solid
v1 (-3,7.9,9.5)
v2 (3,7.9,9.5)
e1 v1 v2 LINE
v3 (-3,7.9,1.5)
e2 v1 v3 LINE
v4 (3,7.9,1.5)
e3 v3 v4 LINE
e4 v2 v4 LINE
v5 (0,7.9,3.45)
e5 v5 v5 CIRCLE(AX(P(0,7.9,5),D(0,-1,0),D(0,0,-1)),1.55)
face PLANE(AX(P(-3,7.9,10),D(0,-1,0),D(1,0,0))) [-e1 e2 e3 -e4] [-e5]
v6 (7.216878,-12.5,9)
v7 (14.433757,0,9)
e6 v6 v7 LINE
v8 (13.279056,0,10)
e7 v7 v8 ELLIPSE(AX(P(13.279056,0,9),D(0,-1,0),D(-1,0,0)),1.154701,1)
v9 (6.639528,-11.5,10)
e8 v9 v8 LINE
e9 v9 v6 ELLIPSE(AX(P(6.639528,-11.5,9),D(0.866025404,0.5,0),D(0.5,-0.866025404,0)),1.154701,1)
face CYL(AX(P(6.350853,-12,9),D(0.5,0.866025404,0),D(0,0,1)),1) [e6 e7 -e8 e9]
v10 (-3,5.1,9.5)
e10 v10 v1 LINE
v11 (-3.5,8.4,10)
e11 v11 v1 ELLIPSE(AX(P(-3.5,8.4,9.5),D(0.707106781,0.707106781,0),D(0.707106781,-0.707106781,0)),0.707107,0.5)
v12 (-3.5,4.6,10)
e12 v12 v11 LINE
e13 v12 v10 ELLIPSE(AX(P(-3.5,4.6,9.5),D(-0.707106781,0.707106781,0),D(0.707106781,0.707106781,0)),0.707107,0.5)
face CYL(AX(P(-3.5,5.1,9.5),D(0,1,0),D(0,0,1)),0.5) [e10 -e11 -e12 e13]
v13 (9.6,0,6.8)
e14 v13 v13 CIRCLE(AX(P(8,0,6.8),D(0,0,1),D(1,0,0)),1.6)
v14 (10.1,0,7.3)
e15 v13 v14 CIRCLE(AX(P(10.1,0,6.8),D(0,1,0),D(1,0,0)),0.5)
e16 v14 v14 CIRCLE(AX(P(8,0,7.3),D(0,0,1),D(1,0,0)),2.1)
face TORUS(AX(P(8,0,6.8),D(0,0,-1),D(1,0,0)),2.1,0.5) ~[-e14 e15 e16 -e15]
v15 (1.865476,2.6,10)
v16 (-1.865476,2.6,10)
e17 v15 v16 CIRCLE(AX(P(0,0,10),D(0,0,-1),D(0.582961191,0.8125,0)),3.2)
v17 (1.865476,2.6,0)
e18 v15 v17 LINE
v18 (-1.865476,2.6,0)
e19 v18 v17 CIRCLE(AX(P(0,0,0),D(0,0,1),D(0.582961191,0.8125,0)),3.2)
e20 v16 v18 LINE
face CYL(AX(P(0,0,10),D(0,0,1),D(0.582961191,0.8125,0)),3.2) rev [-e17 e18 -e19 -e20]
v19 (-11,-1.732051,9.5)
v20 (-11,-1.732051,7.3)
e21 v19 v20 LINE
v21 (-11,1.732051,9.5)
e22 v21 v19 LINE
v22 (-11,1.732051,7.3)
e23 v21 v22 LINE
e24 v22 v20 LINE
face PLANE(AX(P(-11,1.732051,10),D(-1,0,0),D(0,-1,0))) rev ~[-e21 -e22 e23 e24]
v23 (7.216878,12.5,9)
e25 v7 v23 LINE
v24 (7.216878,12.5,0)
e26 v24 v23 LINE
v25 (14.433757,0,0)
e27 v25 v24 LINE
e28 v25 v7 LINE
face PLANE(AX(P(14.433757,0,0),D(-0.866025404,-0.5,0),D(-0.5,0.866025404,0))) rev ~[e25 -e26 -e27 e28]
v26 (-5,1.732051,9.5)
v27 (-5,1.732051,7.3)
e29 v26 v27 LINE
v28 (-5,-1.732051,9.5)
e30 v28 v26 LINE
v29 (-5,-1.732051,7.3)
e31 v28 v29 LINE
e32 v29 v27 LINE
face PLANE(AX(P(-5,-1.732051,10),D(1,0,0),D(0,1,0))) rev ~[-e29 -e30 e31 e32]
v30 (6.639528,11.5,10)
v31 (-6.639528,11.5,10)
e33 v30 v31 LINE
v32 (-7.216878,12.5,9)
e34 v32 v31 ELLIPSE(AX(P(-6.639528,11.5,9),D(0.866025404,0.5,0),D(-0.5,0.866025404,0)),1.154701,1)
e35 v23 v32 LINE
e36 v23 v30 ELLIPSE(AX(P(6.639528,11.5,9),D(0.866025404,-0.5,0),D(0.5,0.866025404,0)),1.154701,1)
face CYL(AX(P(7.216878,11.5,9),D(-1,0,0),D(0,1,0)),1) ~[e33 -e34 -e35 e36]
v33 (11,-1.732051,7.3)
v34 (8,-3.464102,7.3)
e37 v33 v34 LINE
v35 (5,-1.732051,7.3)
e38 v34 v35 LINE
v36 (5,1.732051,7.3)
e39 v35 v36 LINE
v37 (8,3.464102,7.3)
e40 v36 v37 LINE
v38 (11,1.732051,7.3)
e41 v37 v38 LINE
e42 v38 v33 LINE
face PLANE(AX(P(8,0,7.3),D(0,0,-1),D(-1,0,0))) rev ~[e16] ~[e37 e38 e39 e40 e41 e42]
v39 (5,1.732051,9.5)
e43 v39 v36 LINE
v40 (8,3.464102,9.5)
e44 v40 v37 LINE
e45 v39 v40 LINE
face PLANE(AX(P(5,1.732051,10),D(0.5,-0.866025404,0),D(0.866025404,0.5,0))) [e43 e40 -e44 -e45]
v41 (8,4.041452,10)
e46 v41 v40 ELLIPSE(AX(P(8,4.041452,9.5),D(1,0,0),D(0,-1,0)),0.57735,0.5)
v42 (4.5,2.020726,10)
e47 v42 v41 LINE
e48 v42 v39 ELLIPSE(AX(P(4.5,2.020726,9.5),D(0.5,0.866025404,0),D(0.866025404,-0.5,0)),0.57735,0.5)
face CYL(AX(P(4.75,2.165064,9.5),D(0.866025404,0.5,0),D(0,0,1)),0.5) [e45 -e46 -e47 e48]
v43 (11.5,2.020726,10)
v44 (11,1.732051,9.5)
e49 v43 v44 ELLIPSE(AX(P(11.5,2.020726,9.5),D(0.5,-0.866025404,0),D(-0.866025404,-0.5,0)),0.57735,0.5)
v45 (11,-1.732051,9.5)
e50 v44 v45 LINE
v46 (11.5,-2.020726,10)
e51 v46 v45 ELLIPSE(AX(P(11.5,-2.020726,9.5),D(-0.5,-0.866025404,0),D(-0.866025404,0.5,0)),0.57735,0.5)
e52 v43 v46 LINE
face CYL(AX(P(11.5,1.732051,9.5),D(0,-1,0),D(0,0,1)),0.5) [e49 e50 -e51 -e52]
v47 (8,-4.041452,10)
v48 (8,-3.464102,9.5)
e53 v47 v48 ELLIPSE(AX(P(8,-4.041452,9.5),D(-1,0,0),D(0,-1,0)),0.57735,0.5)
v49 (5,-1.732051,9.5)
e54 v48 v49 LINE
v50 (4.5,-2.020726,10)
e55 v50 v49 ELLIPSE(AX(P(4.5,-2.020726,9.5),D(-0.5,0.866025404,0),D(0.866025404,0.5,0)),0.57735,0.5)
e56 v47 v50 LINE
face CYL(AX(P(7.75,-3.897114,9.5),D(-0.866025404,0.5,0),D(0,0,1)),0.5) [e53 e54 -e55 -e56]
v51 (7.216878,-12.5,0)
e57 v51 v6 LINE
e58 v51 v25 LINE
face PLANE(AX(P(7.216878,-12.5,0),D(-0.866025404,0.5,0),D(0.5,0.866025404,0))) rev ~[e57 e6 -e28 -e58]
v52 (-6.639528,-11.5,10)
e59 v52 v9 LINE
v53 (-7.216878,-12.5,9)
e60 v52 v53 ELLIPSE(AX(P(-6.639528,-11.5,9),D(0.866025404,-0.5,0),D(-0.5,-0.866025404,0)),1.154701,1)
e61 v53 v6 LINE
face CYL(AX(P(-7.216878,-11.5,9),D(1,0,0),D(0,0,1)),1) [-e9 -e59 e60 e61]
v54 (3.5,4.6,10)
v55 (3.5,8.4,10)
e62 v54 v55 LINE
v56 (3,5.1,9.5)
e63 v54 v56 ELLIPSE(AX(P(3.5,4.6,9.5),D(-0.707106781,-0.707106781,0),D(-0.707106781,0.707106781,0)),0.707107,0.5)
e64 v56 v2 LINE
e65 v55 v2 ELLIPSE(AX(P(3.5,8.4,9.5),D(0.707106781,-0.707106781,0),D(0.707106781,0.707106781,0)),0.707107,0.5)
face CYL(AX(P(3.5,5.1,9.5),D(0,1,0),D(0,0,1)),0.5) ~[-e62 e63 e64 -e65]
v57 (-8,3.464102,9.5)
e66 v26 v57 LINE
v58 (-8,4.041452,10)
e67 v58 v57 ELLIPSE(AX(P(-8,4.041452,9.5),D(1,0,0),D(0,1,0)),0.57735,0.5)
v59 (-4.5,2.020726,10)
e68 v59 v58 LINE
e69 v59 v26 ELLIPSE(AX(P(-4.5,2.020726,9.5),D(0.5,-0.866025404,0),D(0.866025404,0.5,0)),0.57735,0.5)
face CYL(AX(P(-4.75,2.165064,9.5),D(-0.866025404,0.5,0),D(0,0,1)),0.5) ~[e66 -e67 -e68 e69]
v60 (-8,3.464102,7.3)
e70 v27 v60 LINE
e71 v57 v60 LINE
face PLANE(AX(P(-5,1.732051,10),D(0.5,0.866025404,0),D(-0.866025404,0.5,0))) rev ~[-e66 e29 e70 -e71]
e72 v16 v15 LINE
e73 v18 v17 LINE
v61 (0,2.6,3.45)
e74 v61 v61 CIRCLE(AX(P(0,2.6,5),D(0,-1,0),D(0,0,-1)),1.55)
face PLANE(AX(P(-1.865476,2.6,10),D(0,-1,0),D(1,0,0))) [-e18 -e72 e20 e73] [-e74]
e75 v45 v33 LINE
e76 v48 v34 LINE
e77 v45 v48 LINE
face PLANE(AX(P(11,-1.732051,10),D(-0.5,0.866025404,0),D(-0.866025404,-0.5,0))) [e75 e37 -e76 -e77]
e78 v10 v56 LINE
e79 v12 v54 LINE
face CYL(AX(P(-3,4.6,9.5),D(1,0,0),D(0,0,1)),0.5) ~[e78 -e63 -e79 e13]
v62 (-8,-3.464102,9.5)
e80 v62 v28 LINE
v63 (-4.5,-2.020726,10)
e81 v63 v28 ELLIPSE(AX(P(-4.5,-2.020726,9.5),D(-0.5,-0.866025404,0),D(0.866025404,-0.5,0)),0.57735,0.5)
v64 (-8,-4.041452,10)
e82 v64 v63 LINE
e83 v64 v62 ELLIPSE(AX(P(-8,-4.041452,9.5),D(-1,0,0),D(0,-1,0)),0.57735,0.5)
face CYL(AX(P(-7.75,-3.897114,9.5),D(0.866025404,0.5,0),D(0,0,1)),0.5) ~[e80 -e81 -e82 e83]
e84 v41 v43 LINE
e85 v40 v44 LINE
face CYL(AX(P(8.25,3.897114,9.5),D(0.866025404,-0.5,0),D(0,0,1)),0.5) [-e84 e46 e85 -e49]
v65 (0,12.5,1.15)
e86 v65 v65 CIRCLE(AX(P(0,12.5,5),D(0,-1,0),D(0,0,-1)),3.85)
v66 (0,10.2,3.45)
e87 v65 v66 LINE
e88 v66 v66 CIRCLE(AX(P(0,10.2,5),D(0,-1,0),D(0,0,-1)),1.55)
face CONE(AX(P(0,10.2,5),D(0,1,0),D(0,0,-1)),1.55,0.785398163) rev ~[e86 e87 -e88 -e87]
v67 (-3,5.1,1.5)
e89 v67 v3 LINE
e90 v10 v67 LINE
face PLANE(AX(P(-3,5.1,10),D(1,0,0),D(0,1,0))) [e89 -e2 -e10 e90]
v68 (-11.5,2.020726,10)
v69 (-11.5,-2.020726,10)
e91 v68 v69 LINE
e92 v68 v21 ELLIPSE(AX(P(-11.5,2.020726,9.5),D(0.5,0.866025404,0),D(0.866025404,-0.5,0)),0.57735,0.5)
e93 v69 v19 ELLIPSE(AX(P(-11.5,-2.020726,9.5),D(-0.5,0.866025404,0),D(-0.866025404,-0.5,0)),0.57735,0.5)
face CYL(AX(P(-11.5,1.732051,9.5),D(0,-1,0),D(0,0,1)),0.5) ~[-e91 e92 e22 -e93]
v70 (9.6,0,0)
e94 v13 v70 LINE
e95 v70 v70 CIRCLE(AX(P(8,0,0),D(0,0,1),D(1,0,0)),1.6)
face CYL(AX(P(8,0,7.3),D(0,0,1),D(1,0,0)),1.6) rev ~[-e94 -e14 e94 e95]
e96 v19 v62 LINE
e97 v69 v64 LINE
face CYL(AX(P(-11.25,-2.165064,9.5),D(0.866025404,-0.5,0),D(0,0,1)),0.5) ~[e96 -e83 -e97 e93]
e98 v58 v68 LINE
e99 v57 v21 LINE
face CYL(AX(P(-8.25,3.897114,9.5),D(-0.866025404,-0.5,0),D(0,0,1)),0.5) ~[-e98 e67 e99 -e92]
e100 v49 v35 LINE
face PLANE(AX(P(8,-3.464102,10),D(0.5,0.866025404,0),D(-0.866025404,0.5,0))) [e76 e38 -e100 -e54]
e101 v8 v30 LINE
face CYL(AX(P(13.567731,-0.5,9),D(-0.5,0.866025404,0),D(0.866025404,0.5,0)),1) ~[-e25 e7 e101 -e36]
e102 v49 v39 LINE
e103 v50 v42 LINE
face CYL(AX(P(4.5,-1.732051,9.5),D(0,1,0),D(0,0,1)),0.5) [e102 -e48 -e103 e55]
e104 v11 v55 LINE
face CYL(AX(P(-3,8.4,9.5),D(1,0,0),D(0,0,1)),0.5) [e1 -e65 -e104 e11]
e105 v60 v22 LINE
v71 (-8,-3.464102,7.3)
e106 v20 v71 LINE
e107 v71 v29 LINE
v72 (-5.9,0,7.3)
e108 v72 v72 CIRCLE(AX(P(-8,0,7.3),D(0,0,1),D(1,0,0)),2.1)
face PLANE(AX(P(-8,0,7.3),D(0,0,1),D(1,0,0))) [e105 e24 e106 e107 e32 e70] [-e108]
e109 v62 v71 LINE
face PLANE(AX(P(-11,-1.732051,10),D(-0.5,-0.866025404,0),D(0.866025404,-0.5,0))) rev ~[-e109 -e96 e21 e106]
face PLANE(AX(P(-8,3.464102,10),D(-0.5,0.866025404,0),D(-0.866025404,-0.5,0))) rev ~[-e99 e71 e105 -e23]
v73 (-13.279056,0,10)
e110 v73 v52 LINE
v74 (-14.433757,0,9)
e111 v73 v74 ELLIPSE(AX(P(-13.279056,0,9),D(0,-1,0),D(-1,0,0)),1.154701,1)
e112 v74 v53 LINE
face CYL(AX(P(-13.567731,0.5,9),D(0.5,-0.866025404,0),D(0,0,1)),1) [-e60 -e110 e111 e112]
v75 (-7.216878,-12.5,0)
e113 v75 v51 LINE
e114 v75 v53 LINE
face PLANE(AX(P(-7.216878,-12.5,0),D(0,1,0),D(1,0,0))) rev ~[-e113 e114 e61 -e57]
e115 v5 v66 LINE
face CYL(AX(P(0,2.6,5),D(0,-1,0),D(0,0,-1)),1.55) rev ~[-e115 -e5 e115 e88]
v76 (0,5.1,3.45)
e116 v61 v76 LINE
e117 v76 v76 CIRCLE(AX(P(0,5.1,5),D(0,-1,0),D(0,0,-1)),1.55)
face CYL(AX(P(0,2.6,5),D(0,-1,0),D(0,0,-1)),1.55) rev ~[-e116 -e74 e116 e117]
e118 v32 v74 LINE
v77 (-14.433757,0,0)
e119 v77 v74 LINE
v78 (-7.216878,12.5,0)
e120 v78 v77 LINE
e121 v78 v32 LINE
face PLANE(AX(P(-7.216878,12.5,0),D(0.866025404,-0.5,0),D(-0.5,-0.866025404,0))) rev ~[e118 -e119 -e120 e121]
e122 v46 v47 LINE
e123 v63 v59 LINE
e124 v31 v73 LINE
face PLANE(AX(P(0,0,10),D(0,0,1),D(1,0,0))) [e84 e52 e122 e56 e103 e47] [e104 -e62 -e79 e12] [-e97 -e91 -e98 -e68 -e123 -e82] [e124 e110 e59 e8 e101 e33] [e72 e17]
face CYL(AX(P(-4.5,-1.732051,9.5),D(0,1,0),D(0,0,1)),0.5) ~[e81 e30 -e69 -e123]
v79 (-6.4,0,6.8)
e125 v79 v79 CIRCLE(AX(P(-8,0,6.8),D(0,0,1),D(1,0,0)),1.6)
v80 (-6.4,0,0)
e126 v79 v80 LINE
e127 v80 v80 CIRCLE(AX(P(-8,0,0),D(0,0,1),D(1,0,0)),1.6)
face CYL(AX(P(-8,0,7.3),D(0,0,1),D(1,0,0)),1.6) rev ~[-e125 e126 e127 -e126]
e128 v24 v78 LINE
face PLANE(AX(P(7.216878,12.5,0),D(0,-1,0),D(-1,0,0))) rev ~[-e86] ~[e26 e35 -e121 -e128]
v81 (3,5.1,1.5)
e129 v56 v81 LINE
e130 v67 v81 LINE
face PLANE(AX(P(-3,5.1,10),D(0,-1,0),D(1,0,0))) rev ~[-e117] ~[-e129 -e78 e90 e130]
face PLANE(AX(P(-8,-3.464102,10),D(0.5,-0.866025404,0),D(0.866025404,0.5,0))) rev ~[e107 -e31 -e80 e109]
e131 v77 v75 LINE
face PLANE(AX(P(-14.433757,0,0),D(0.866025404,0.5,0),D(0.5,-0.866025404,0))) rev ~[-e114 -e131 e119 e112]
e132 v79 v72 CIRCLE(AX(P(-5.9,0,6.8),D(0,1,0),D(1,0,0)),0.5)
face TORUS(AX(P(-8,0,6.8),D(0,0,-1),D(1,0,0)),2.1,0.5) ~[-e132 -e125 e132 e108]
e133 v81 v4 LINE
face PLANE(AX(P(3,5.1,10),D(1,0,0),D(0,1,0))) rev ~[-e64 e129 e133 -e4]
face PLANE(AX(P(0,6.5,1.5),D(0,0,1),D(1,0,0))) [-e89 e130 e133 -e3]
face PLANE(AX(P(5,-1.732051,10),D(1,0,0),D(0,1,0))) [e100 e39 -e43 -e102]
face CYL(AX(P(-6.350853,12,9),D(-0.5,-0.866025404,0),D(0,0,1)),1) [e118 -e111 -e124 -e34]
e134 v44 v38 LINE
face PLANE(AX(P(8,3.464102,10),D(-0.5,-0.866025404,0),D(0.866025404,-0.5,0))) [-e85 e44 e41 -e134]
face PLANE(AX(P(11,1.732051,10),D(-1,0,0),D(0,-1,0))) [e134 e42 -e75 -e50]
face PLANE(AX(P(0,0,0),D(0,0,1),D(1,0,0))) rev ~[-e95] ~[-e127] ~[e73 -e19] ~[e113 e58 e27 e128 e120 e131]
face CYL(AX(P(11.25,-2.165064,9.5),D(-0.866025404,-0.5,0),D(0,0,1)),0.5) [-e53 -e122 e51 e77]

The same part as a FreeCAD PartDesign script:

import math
import FreeCAD as App
import Part
import Sketcher
Q = App.Units.Quantity


def edges_at(feature, points):
    """Names of the edges that pass closest to the given points."""
    edges = feature.Shape.Edges
    near = lambda p: min(range(len(edges)), key=lambda i: edges[i].distToShape(Part.Vertex(*p))[0])
    return sorted({f"Edge{near(p) + 1}" for p in points})

doc = App.newDocument("Part")
body = doc.addObject("PartDesign::Body", "Body")

sketch1 = body.newObject("Sketcher::SketchObject", "Sketch")
sketch1.AttachmentSupport = (doc.getObject("XY_Plane"), [""])
sketch1.MapMode = "FlatFace"
sketch1.addGeometry(Part.LineSegment(App.Vector(7, -12, 0), App.Vector(14, 0, 0)), False)
sketch1.addGeometry(Part.LineSegment(App.Vector(14, 0, 0), App.Vector(7, 12, 0)), False)
sketch1.addGeometry(Part.LineSegment(App.Vector(7, 12, 0), App.Vector(-7, 12, 0)), False)
sketch1.addGeometry(Part.LineSegment(App.Vector(-7, 12, 0), App.Vector(-14, 0, 0)), False)
sketch1.addGeometry(Part.LineSegment(App.Vector(-14, 0, 0), App.Vector(-7, -12, 0)), False)
sketch1.addGeometry(Part.LineSegment(App.Vector(-7, -12, 0), App.Vector(7, -12, 0)), False)
sketch1.addConstraint(Sketcher.Constraint("Coincident", 0, 2, 1, 1))
sketch1.addConstraint(Sketcher.Constraint("Coincident", 1, 2, 2, 1))
sketch1.addConstraint(Sketcher.Constraint("Coincident", 2, 2, 3, 1))
sketch1.addConstraint(Sketcher.Constraint("Coincident", 3, 2, 4, 1))
sketch1.addConstraint(Sketcher.Constraint("Coincident", 4, 2, 5, 1))
sketch1.addConstraint(Sketcher.Constraint("Coincident", 5, 2, 0, 1))
sketch1.addConstraint(Sketcher.Constraint("Horizontal", 2))
sketch1.addConstraint(Sketcher.Constraint("Horizontal", 5))
sketch1.addConstraint(Sketcher.Constraint("Symmetric", 0, 2, 3, 2, -1, 1))
sketch1.addConstraint(Sketcher.Constraint("Symmetric", 1, 2, 4, 2, -1, 1))
sketch1.addConstraint(Sketcher.Constraint("PointOnObject", 0, 2, -1))
sketch1.addConstraint(Sketcher.Constraint("Parallel", 0, 3))
sketch1.addConstraint(Sketcher.Constraint("Vertical", 2, 2, 4, 2))
sketch1.addConstraint(Sketcher.Constraint("Angle", 0, Q("60 deg")))
sketch1.addConstraint(Sketcher.Constraint("DistanceY", 4, 2, 2, 2, Q("25 mm")))
sketch1.addConstraint(Sketcher.Constraint("DistanceX", 2, 2, 2, 1, Q("14.433757 mm")))
pad1 = body.newObject("PartDesign::Pad", "Pad")
pad1.Profile = sketch1
pad1.Length = 10

sketch2 = body.newObject("Sketcher::SketchObject", "Sketch001")
sketch2.AttachmentSupport = (doc.getObject("XY_Plane"), [""])
sketch2.MapMode = "FlatFace"
sketch2.AttachmentOffset = App.Placement(App.Vector(0, 0, 10), App.Rotation())
sketch2.addGeometry(Part.LineSegment(App.Vector(1.9, 2.6, 0), App.Vector(-1.9, 2.6, 0)), False)
sketch2.addGeometry(Part.ArcOfCircle(Part.Circle(App.Vector(0, 0, 0), App.Vector(0, 0, 1), 3.2), math.radians(126), math.radians(414)), False)
sketch2.addConstraint(Sketcher.Constraint("Coincident", 0, 1, 1, 2))
sketch2.addConstraint(Sketcher.Constraint("Coincident", 1, 1, 0, 2))
sketch2.addConstraint(Sketcher.Constraint("Horizontal", 0))
sketch2.addConstraint(Sketcher.Constraint("Coincident", 1, 3, -1, 1))
sketch2.addConstraint(Sketcher.Constraint("Radius", 1, Q("3.2 mm")))
sketch2.addConstraint(Sketcher.Constraint("DistanceY", -1, 1, 0, 1, Q("2.6 mm")))
pocket1 = body.newObject("PartDesign::Pocket", "Pocket")
pocket1.Profile = sketch2
pocket1.Type = "ThroughAll"

sketch3 = body.newObject("Sketcher::SketchObject", "Sketch002")
sketch3.AttachmentSupport = (doc.getObject("XZ_Plane"), [""])
sketch3.MapMode = "FlatFace"
sketch3.AttachmentOffset = App.Placement(App.Vector(0, 0, -2.6), App.Rotation())
sketch3.addGeometry(Part.Circle(App.Vector(0, 5, 0), App.Vector(0, 0, 1), 1.6), False)
sketch3.addConstraint(Sketcher.Constraint("PointOnObject", 0, 3, -2))
sketch3.addConstraint(Sketcher.Constraint("Diameter", 0, Q("3.1 mm")))
sketch3.addConstraint(Sketcher.Constraint("DistanceY", -1, 1, 0, 3, Q("5 mm")))
pocket2 = body.newObject("PartDesign::Pocket", "Pocket001")
pocket2.Profile = sketch3
pocket2.Length = 9.9
doc.recompute()

chamfer = body.newObject("PartDesign::Chamfer", "Chamfer")
chamfer.Base = (pocket2, edges_at(pocket2, [(0, 12.5, 6.55)]))
chamfer.Size = 2.3

sketch4 = body.newObject("Sketcher::SketchObject", "Sketch003")
sketch4.AttachmentSupport = (doc.getObject("XY_Plane"), [""])
sketch4.MapMode = "FlatFace"
sketch4.AttachmentOffset = App.Placement(App.Vector(0, 0, 10), App.Rotation())
sketch4.addGeometry(Part.LineSegment(App.Vector(-3, 7.9, 0), App.Vector(-3, 5.1, 0)), False)
sketch4.addGeometry(Part.LineSegment(App.Vector(-3, 5.1, 0), App.Vector(3, 5.1, 0)), False)
sketch4.addGeometry(Part.LineSegment(App.Vector(3, 5.1, 0), App.Vector(3, 7.9, 0)), False)
sketch4.addGeometry(Part.LineSegment(App.Vector(3, 7.9, 0), App.Vector(-3, 7.9, 0)), False)
sketch4.addConstraint(Sketcher.Constraint("Coincident", 0, 2, 1, 1))
sketch4.addConstraint(Sketcher.Constraint("Coincident", 1, 2, 2, 1))
sketch4.addConstraint(Sketcher.Constraint("Coincident", 2, 2, 3, 1))
sketch4.addConstraint(Sketcher.Constraint("Coincident", 3, 2, 0, 1))
sketch4.addConstraint(Sketcher.Constraint("Vertical", 0))
sketch4.addConstraint(Sketcher.Constraint("Horizontal", 1))
sketch4.addConstraint(Sketcher.Constraint("Vertical", 2))
sketch4.addConstraint(Sketcher.Constraint("Horizontal", 3))
sketch4.addConstraint(Sketcher.Constraint("DistanceX", 1, 1, 1, 2, Q("6 mm")))
sketch4.addConstraint(Sketcher.Constraint("DistanceY", 0, 2, 0, 1, Q("2.8 mm")))
sketch4.addConstraint(Sketcher.Constraint("DistanceX", 0, 2, -1, 1, Q("3 mm")))
sketch4.addConstraint(Sketcher.Constraint("DistanceY", -1, 1, 0, 2, Q("5.1 mm")))
pocket3 = body.newObject("PartDesign::Pocket", "Pocket002")
pocket3.Profile = sketch4
pocket3.Length = 8.5
doc.recompute()

fillet = body.newObject("PartDesign::Fillet", "Fillet")
fillet.Base = (pocket3, edges_at(pocket3, [
    (10.825, 6.25, 10),
    (0, 12.5, 10),
    (-10.825, 6.25, 10),
    (-10.825, -6.25, 10),
    (0, -12.5, 10),
    (10.825, -6.25, 10),
]))
fillet.Radius = 1

sketch5 = body.newObject("Sketcher::SketchObject", "Sketch004")
sketch5.AttachmentSupport = (doc.getObject("XY_Plane"), [""])
sketch5.MapMode = "FlatFace"
sketch5.AttachmentOffset = App.Placement(App.Vector(0, 0, 10), App.Rotation())
sketch5.addGeometry(Part.LineSegment(App.Vector(-11, -1.7, 0), App.Vector(-8, -3.5, 0)), False)
sketch5.addGeometry(Part.LineSegment(App.Vector(-8, -3.5, 0), App.Vector(-5, -1.7, 0)), False)
sketch5.addGeometry(Part.LineSegment(App.Vector(-5, -1.7, 0), App.Vector(-5, 1.7, 0)), False)
sketch5.addGeometry(Part.LineSegment(App.Vector(-5, 1.7, 0), App.Vector(-8, 3.5, 0)), False)
sketch5.addGeometry(Part.LineSegment(App.Vector(-8, 3.5, 0), App.Vector(-11, 1.7, 0)), False)
sketch5.addGeometry(Part.LineSegment(App.Vector(-11, 1.7, 0), App.Vector(-11, -1.7, 0)), False)
sketch5.addGeometry(Part.LineSegment(App.Vector(5, -1.7, 0), App.Vector(8, -3.5, 0)), False)
sketch5.addGeometry(Part.LineSegment(App.Vector(8, -3.5, 0), App.Vector(11, -1.7, 0)), False)
sketch5.addGeometry(Part.LineSegment(App.Vector(11, -1.7, 0), App.Vector(11, 1.7, 0)), False)
sketch5.addGeometry(Part.LineSegment(App.Vector(11, 1.7, 0), App.Vector(8, 3.5, 0)), False)
sketch5.addGeometry(Part.LineSegment(App.Vector(8, 3.5, 0), App.Vector(5, 1.7, 0)), False)
sketch5.addGeometry(Part.LineSegment(App.Vector(5, 1.7, 0), App.Vector(5, -1.7, 0)), False)
sketch5.addConstraint(Sketcher.Constraint("Coincident", 0, 2, 1, 1))
sketch5.addConstraint(Sketcher.Constraint("Coincident", 1, 2, 2, 1))
sketch5.addConstraint(Sketcher.Constraint("Coincident", 2, 2, 3, 1))
sketch5.addConstraint(Sketcher.Constraint("Coincident", 3, 2, 4, 1))
sketch5.addConstraint(Sketcher.Constraint("Coincident", 4, 2, 5, 1))
sketch5.addConstraint(Sketcher.Constraint("Coincident", 5, 2, 0, 1))
sketch5.addConstraint(Sketcher.Constraint("Coincident", 6, 2, 7, 1))
sketch5.addConstraint(Sketcher.Constraint("Coincident", 7, 2, 8, 1))
sketch5.addConstraint(Sketcher.Constraint("Coincident", 8, 2, 9, 1))
sketch5.addConstraint(Sketcher.Constraint("Coincident", 9, 2, 10, 1))
sketch5.addConstraint(Sketcher.Constraint("Coincident", 10, 2, 11, 1))
sketch5.addConstraint(Sketcher.Constraint("Coincident", 11, 2, 6, 1))
sketch5.addConstraint(Sketcher.Constraint("Vertical", 2))
sketch5.addConstraint(Sketcher.Constraint("Vertical", 5))
sketch5.addConstraint(Sketcher.Constraint("Vertical", 8))
sketch5.addConstraint(Sketcher.Constraint("Vertical", 11))
sketch5.addConstraint(Sketcher.Constraint("Symmetric", 3, 2, 6, 2, -1, 1))
sketch5.addConstraint(Sketcher.Constraint("Symmetric", 4, 2, 7, 2, -1, 1))
sketch5.addConstraint(Sketcher.Constraint("Symmetric", 0, 2, 9, 2, -1, 1))
sketch5.addConstraint(Sketcher.Constraint("Symmetric", 1, 2, 10, 2, -1, 1))
sketch5.addConstraint(Sketcher.Constraint("Symmetric", 0, 2, 6, 2, -2))
sketch5.addConstraint(Sketcher.Constraint("Parallel", 0, 3))
sketch5.addConstraint(Sketcher.Constraint("Parallel", 1, 4))
sketch5.addConstraint(Sketcher.Constraint("Parallel", 3, 6))
sketch5.addConstraint(Sketcher.Constraint("Parallel", 6, 9))
sketch5.addConstraint(Sketcher.Constraint("Horizontal", 2, 2, 4, 2))
sketch5.addConstraint(Sketcher.Constraint("Horizontal", 1, 2, 5, 2))
sketch5.addConstraint(Sketcher.Constraint("Angle", 0, Q("-30 deg")))
sketch5.addConstraint(Sketcher.Constraint("DistanceX", 0, 2, -1, 1, Q("8 mm")))
sketch5.addConstraint(Sketcher.Constraint("DistanceX", 1, 2, -1, 1, Q("5 mm")))
sketch5.addConstraint(Sketcher.Constraint("DistanceY", 2, 1, 2, 2, Q("3.464102 mm")))
pocket4 = body.newObject("PartDesign::Pocket", "Pocket003")
pocket4.Profile = sketch5
pocket4.Length = 2.7

sketch6 = body.newObject("Sketcher::SketchObject", "Sketch005")
sketch6.AttachmentSupport = (doc.getObject("XY_Plane"), [""])
sketch6.MapMode = "FlatFace"
sketch6.AttachmentOffset = App.Placement(App.Vector(0, 0, 7.3), App.Rotation())
sketch6.addGeometry(Part.Circle(App.Vector(-8, 0, 0), App.Vector(0, 0, 1), 1.6), False)
sketch6.addGeometry(Part.Circle(App.Vector(8, 0, 0), App.Vector(0, 0, 1), 1.6), False)
sketch6.addConstraint(Sketcher.Constraint("Equal", 0, 1))
sketch6.addConstraint(Sketcher.Constraint("Symmetric", 0, 3, 1, 3, -1, 1))
sketch6.addConstraint(Sketcher.Constraint("PointOnObject", 0, 3, -1))
sketch6.addConstraint(Sketcher.Constraint("Diameter", 0, Q("3.2 mm")))
sketch6.addConstraint(Sketcher.Constraint("DistanceX", 0, 3, -1, 1, Q("8 mm")))
pocket5 = body.newObject("PartDesign::Pocket", "Pocket004")
pocket5.Profile = sketch6
pocket5.Length = 7.3
doc.recompute()

fillet2 = body.newObject("PartDesign::Fillet", "Fillet001")
fillet2.Base = (pocket5, edges_at(pocket5, [
    (-9.6, 0, 7.3),
    (6.4, 0, 7.3),
    (3, 6.5, 10),
    (0, 7.9, 10),
    (-3, 6.5, 10),
    (0, 5.1, 10),
    (9.5, -2.598, 10),
    (11, 0, 10),
    (9.5, 2.598, 10),
    (6.5, 2.598, 10),
    (5, 0, 10),
    (6.5, -2.598, 10),
    (-11, 0, 10),
    (-9.5, -2.598, 10),
    (-6.5, -2.598, 10),
    (-5, 0, 10),
    (-6.5, 2.598, 10),
    (-9.5, 2.598, 10),
]))
fillet2.Radius = 0.5

doc.recompute()
